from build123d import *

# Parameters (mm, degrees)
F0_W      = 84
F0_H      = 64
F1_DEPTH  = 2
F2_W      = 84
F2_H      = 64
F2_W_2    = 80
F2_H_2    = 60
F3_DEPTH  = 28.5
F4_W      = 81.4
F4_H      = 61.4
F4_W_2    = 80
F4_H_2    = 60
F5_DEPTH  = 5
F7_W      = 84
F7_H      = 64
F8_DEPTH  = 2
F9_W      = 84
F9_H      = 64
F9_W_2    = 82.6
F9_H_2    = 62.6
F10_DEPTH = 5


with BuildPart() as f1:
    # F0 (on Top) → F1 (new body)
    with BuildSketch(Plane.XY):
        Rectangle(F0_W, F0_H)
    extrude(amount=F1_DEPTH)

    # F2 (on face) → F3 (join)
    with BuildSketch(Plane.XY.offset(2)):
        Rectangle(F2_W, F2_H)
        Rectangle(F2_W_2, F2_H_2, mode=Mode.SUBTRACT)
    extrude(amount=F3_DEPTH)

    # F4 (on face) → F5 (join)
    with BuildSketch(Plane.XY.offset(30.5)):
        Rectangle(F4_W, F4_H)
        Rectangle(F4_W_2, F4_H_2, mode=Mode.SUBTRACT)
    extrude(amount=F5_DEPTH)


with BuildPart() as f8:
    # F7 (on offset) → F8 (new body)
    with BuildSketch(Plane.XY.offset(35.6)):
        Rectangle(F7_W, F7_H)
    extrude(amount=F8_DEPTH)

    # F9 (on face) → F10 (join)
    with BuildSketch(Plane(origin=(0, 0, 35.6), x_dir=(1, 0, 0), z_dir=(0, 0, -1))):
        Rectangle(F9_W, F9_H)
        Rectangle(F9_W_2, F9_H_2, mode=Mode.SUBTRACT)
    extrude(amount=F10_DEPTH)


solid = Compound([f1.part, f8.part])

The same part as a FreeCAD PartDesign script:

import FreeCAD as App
import Part
import Sketcher


def add_polygon(sketch, points):
    """Adds a closed chain of lines whose ends are joined by coincident constraints."""
    first, n = sketch.GeometryCount, len(points)
    for a, b in zip(points, points[1:] + points[:1]):
        sketch.addGeometry(Part.LineSegment(App.Vector(*a, 0), App.Vector(*b, 0)), False)
    for i in range(n):
        sketch.addConstraint(Sketcher.Constraint("Coincident", first + i, 2, first + (i + 1) % n, 1))

doc = App.newDocument("Part")
body = doc.addObject("PartDesign::Body", "Body")

sketch1 = body.newObject("Sketcher::SketchObject", "Sketch")
sketch1.AttachmentSupport = (doc.getObject("XY_Plane"), [""])
sketch1.MapMode = "FlatFace"
add_polygon(sketch1, [(-42, 32), (-42, -32), (42, -32), (42, 32)])
sketch1.addConstraint(Sketcher.Constraint("Vertical", 0))
sketch1.addConstraint(Sketcher.Constraint("Horizontal", 1))
sketch1.addConstraint(Sketcher.Constraint("Vertical", 2))
sketch1.addConstraint(Sketcher.Constraint("Horizontal", 3))
sketch1.addConstraint(Sketcher.Constraint("Symmetric", 0, 2, 2, 2, -1, 1))
sketch1.addConstraint(Sketcher.Constraint("DistanceX", 1, 1, 1, 2, 84.0))
sketch1.addConstraint(Sketcher.Constraint("DistanceY", 0, 2, 0, 1, 64.0))
pad1 = body.newObject("PartDesign::Pad", "Pad")
pad1.Profile = sketch1
pad1.Length = 2

sketch2 = body.newObject("Sketcher::SketchObject", "Sketch001")
sketch2.AttachmentSupport = (doc.getObject("XY_Plane"), [""])
sketch2.MapMode = "FlatFace"
sketch2.AttachmentOffset = App.Placement(App.Vector(0, 0, 2), App.Rotation())
add_polygon(sketch2, [(-42, 32), (-42, -32), (42, -32), (42, 32)])
add_polygon(sketch2, [(40, -30), (-40, -30), (-40, 30), (40, 30)])
sketch2.addConstraint(Sketcher.Constraint("Vertical", 0))
sketch2.addConstraint(Sketcher.Constraint("Horizontal", 1))
sketch2.addConstraint(Sketcher.Constraint("Vertical", 2))
sketch2.addConstraint(Sketcher.Constraint("Horizontal", 3))
sketch2.addConstraint(Sketcher.Constraint("Horizontal", 4))
sketch2.addConstraint(Sketcher.Constraint("Vertical", 5))
sketch2.addConstraint(Sketcher.Constraint("Horizontal", 6))
sketch2.addConstraint(Sketcher.Constraint("Vertical", 7))
sketch2.addConstraint(Sketcher.Constraint("Symmetric", 0, 2, 2, 2, -1, 1))
sketch2.addConstraint(Sketcher.Constraint("Symmetric", 4, 2, 6, 2, -1, 1))
sketch2.addConstraint(Sketcher.Constraint("DistanceX", 1, 1, 1, 2, 84.0))
sketch2.addConstraint(Sketcher.Constraint("DistanceX", 4, 2, 4, 1, 80.0))
sketch2.addConstraint(Sketcher.Constraint("DistanceY", 0, 2, 0, 1, 64.0))
sketch2.addConstraint(Sketcher.Constraint("DistanceY", 5, 1, 5, 2, 60.0))
pad2 = body.newObject("PartDesign::Pad", "Pad001")
pad2.Profile = sketch2
pad2.Length = 28.5

sketch3 = body.newObject("Sketcher::SketchObject", "Sketch002")
sketch3.AttachmentSupport = (doc.getObject("XY_Plane"), [""])
sketch3.MapMode = "FlatFace"
sketch3.AttachmentOffset = App.Placement(App.Vector(0, 0, 30.5), App.Rotation())
add_polygon(sketch3, [(-41, 31), (-41, -31), (41, -31), (41, 31)])
add_polygon(sketch3, [(40, -30), (-40, -30), (-40, 30), (40, 30)])
sketch3.addConstraint(Sketcher.Constraint("Vertical", 0))
sketch3.addConstraint(Sketcher.Constraint("Horizontal", 1))
sketch3.addConstraint(Sketcher.Constraint("Vertical", 2))
sketch3.addConstraint(Sketcher.Constraint("Horizontal", 3))
sketch3.addConstraint(Sketcher.Constraint("Horizontal", 4))
sketch3.addConstraint(Sketcher.Constraint("Vertical", 5))
sketch3.addConstraint(Sketcher.Constraint("Horizontal", 6))
sketch3.addConstraint(Sketcher.Constraint("Vertical", 7))
sketch3.addConstraint(Sketcher.Constraint("Symmetric", 0, 2, 2, 2, -1, 1))
sketch3.addConstraint(Sketcher.Constraint("Symmetric", 4, 2, 6, 2, -1, 1))
sketch3.addConstraint(Sketcher.Constraint("DistanceX", 4, 2, 4, 1, 80.0))
sketch3.addConstraint(Sketcher.Constraint("DistanceY", 5, 1, 5, 2, 60.0))
sketch3.addConstraint(Sketcher.Constraint("DistanceX", 1, 1, 1, 2, 81.4))
sketch3.addConstraint(Sketcher.Constraint("DistanceY", 0, 2, 0, 1, 61.4))
pad3 = body.newObject("PartDesign::Pad", "Pad002")
pad3.Profile = sketch3
pad3.Length = 5
body2 = doc.addObject("PartDesign::Body", "Body001")

sketch4 = body2.newObject("Sketcher::SketchObject", "Sketch003")
sketch4.AttachmentSupport = (doc.getObject("XY_Plane001"), [""])
sketch4.MapMode = "FlatFace"
sketch4.AttachmentOffset = App.Placement(App.Vector(0, 0, 35.6), App.Rotation())
add_polygon(sketch4, [(-42, 32), (-42, -32), (42, -32), (42, 32)])
sketch4.addConstraint(Sketcher.Constraint("Vertical", 0))
sketch4.addConstraint(Sketcher.Constraint("Horizontal", 1))
sketch4.addConstraint(Sketcher.Constraint("Vertical", 2))
sketch4.addConstraint(Sketcher.Constraint("Horizontal", 3))
sketch4.addConstraint(Sketcher.Constraint("Symmetric", 0, 2, 2, 2, -1, 1))
sketch4.addConstraint(Sketcher.Constraint("DistanceX", 1, 1, 1, 2, 84.0))
sketch4.addConstraint(Sketcher.Constraint("DistanceY", 0, 2, 0, 1, 64.0))
pad4 = body2.newObject("PartDesign::Pad", "Pad003")
pad4.Profile = sketch4
pad4.Length = 2

sketch5 = body2.newObject("Sketcher::SketchObject", "Sketch004")
sketch5.AttachmentSupport = (doc.getObject("XY_Plane001"), [""])
sketch5.MapMode = "FlatFace"
sketch5.AttachmentOffset = App.Placement(App.Vector(0, 0, 35.6), App.Rotation())
add_polygon(sketch5, [(-42, -32), (-42, 32), (42, 32), (42, -32)])
add_polygon(sketch5, [(41, 31), (-41, 31), (-41, -31), (41, -31)])
sketch5.addConstraint(Sketcher.Constraint("Vertical", 0))
sketch5.addConstraint(Sketcher.Constraint("Horizontal", 1))
sketch5.addConstraint(Sketcher.Constraint("Vertical", 2))
sketch5.addConstraint(Sketcher.Constraint("Horizontal", 3))
sketch5.addConstraint(Sketcher.Constraint("Horizontal", 4))
sketch5.addConstraint(Sketcher.Constraint("Vertical", 5))
sketch5.addConstraint(Sketcher.Constraint("Horizontal", 6))
sketch5.addConstraint(Sketcher.Constraint("Vertical", 7))
sketch5.addConstraint(Sketcher.Constraint("Symmetric", 0, 2, 2, 2, -1, 1))
sketch5.addConstraint(Sketcher.Constraint("Symmetric", 4, 2, 6, 2, -1, 1))
sketch5.addConstraint(Sketcher.Constraint("DistanceX", 1, 1, 1, 2, 84.0))
sketch5.addConstraint(Sketcher.Constraint("DistanceY", 0, 1, 0, 2, 64.0))
sketch5.addConstraint(Sketcher.Constraint("DistanceX", 4, 2, 4, 1, 82.6))
sketch5.addConstraint(Sketcher.Constraint("DistanceY", 5, 2, 5, 1, 62.6))
pad5 = body2.newObject("PartDesign::Pad", "Pad004")
pad5.Profile = sketch5
pad5.Length = 5
pad5.Reversed = True

doc.recompute()
